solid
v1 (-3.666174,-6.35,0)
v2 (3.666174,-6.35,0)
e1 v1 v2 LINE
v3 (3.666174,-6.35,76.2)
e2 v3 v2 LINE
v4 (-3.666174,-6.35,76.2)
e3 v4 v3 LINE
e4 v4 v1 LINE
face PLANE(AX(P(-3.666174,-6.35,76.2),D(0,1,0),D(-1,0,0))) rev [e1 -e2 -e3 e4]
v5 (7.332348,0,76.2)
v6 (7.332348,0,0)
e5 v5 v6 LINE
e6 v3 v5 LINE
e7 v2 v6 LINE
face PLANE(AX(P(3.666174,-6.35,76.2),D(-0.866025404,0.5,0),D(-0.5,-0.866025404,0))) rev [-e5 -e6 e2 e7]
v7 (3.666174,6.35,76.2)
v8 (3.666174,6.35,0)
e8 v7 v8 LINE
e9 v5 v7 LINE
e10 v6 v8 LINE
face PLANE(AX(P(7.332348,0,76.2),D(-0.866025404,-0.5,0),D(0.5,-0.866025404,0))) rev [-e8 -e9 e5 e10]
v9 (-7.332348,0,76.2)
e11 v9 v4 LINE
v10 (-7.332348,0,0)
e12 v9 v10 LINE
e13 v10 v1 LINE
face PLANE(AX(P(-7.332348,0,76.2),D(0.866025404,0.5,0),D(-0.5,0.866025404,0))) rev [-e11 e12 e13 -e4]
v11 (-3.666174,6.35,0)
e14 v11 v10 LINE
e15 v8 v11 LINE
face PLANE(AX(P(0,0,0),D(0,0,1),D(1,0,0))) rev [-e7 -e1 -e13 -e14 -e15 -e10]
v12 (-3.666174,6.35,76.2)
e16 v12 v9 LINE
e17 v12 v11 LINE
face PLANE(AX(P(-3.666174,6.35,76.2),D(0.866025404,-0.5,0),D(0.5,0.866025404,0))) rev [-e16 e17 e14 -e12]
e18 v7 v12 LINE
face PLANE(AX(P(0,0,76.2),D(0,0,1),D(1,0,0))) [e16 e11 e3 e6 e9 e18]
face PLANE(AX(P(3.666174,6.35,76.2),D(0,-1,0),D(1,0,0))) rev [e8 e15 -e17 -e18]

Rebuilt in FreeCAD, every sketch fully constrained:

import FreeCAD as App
import Part
import Sketcher
Q = App.Units.Quantity

doc = App.newDocument("Part")
body = doc.addObject("PartDesign::Body", "Body")

sketch1 = body.newObject("Sketcher::SketchObject", "Sketch")
sketch1.AttachmentSupport = (doc.getObject("XY_Plane"), [""])
sketch1.MapMode = "FlatFace"
sketch1.addGeometry([
    Part.LineSegment(App.Vector(7, 0, 0), App.Vector(4, 6, 0)),
    Part.LineSegment(App.Vector(4, 6, 0), App.Vector(-4, 6, 0)),
    Part.LineSegment(App.Vector(-4, 6, 0), App.Vector(-7, 0, 0)),
    Part.LineSegment(App.Vector(-7, 0, 0), App.Vector(-4, -6, 0)),
    Part.LineSegment(App.Vector(-4, -6, 0), App.Vector(4, -6, 0)),
    Part.LineSegment(App.Vector(4, -6, 0), App.Vector(7, 0, 0)),
], False)
sketch1.addConstraint([
    Sketcher.Constraint("Coincident", 0, 2, 1, 1),
    Sketcher.Constraint("Coincident", 1, 2, 2, 1),
    Sketcher.Constraint("Coincident", 2, 2, 3, 1),
    Sketcher.Constraint("Coincident", 3, 2, 4, 1),
    Sketcher.Constraint("Coincident", 4, 2, 5, 1),
    Sketcher.Constraint("Coincident", 5, 2, 0, 1),
    Sketcher.Constraint("Horizontal", 1),
    Sketcher.Constraint("Horizontal", 4),
    Sketcher.Constraint("Symmetric", 0, 2, 3, 2, -1, 1),
    Sketcher.Constraint("Symmetric", 2, 2, 5, 2, -1, 1),
    Sketcher.Constraint("PointOnObject", 2, 2, -1),
    Sketcher.Constraint("Parallel", 2, 5),
    Sketcher.Constraint("Vertical", 1, 2, 3, 2),
    Sketcher.Constraint("Angle", 0, Q("120 deg")),
    Sketcher.Constraint("DistanceY", 3, 2, 1, 2, Q("0.5 in")),
    Sketcher.Constraint("DistanceX", 1, 2, 1, 1, 7.332348),
])
pad1 = body.newObject("PartDesign::Pad", "Pad")
pad1.Profile = sketch1
pad1.Length = Q("3 in")

doc.recompute()
